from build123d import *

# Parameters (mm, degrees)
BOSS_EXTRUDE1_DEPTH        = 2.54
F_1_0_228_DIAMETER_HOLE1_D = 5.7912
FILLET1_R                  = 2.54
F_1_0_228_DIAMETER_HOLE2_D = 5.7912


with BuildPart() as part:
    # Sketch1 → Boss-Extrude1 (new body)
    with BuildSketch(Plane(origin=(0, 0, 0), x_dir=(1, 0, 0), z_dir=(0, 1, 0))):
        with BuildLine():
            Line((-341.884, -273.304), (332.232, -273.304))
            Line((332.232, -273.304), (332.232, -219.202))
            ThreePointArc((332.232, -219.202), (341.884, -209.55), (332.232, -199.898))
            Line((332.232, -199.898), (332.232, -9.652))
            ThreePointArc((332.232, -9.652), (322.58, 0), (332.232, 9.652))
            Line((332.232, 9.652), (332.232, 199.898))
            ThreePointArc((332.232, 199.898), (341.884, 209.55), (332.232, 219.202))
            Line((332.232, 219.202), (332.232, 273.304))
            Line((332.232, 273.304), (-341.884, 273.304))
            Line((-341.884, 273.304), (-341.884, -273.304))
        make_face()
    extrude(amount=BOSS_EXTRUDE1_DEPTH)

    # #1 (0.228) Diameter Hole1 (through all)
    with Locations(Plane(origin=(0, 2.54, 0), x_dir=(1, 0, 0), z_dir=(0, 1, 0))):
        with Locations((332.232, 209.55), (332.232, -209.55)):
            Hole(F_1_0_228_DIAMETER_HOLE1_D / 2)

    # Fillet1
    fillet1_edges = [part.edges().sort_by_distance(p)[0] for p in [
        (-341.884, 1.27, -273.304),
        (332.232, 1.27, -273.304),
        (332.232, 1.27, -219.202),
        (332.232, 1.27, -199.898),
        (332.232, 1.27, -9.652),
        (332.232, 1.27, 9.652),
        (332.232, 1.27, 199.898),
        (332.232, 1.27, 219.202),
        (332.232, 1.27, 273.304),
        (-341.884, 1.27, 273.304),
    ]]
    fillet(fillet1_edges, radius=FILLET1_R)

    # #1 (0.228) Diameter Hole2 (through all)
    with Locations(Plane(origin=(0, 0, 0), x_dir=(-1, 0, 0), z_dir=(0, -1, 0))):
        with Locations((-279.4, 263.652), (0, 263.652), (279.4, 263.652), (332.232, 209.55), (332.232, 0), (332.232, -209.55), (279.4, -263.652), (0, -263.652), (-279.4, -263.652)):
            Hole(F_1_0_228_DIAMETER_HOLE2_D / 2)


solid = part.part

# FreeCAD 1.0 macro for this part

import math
import FreeCAD as App
import Part
import Sketcher
from FreeCAD import Vector
Q = App.Units.Quantity


def edges_at(feature, points):
    """Names of the edges that pass closest to the given points."""
    edges = feature.Shape.Edges
    near = lambda p: min(range(len(edges)), key=lambda i: edges[i].distToShape(Part.Vertex(*p))[0])
    return sorted({f"Edge{near(p) + 1}" for p in points})

doc = App.newDocument("Part")
body = doc.addObject("PartDesign::Body", "Body")

sketch1 = doc.addObject("Sketcher::SketchObject", "Sketch")
body.addObject(sketch1)
sketch1.AttachmentSupport = (doc.XZ_Plane, [""])
sketch1.MapMode = "FlatFace"
sketch1.addGeometry([
    Part.LineSegment(Vector(-342, 273, 0), Vector(332, 273, 0)),
    Part.LineSegment(Vector(332, 273, 0), Vector(332, 219, 0)),
    Part.ArcOfCircle(Part.Circle(Vector(332, 210, 0), Vector(0, 0, 1), 10), math.radians(-90), math.radians(90)),
    Part.LineSegment(Vector(332, 200, 0), Vector(332, 10, 0)),
    Part.ArcOfCircle(Part.Circle(Vector(332, 0, 0), Vector(0, 0, 1), 10), math.radians(90), math.radians(270)),
    Part.LineSegment(Vector(332, -10, 0), Vector(332, -200, 0)),
    Part.ArcOfCircle(Part.Circle(Vector(332, -210, 0), Vector(0, 0, 1), 10), math.radians(-90), math.radians(90)),
    Part.LineSegment(Vector(332, -219, 0), Vector(332, -273, 0)),
    Part.LineSegment(Vector(332, -273, 0), Vector(-342, -273, 0)),
    Part.LineSegment(Vector(-342, -273, 0), Vector(-342, 273, 0)),
], False)
sketch1.addConstraint([
    Sketcher.Constraint("Coincident", 0, 2, 1, 1),
    Sketcher.Constraint("Coincident", 1, 2, 2, 2),
    Sketcher.Constraint("Coincident", 2, 1, 3, 1),
    Sketcher.Constraint("Coincident", 3, 2, 4, 1),
    Sketcher.Constraint("Coincident", 4, 2, 5, 1),
    Sketcher.Constraint("Coincident", 5, 2, 6, 2),
    Sketcher.Constraint("Coincident", 6, 1, 7, 1),
    Sketcher.Constraint("Coincident", 7, 2, 8, 1),
    Sketcher.Constraint("Coincident", 8, 2, 9, 1),
    Sketcher.Constraint("Coincident", 9, 2, 0, 1),
    Sketcher.Constraint("Horizontal", 0),
    Sketcher.Constraint("Vertical", 1),
    Sketcher.Constraint("Vertical", 3),
    Sketcher.Constraint("Vertical", 5),
    Sketcher.Constraint("Vertical", 7),
    Sketcher.Constraint("Horizontal", 8),
    Sketcher.Constraint("Vertical", 9),
    Sketcher.Constraint("Equal", 2, 4),
    Sketcher.Constraint("Equal", 4, 6),
    Sketcher.Constraint("Symmetric", 2, 3, 6, 3, -1),
    Sketcher.Constraint("Symmetric", 3, 2, 4, 2, -1),
    Sketcher.Constraint("Symmetric", 0, 2, 7, 2, -1),
    Sketcher.Constraint("Vertical", 2, 3, 4, 3),
    Sketcher.Constraint("Vertical", 6, 3, 0, 2),
    Sketcher.Constraint("Vertical", 1, 2, 2, 1),
    Sketcher.Constraint("Radius", 2, Q("0.38 in")),
    Sketcher.Constraint("DistanceX", 0, 1, 0, 2, Q("26.54 in")),
    Sketcher.Constraint("DistanceY", 1, 2, 1, 1, Q("2.13 in")),
    Sketcher.Constraint("DistanceY", 3, 2, 3, 1, Q("7.49 in")),
    Sketcher.Constraint("DistanceX", -1, 1, 2, 3, Q("13.08 in")),
])
pad1 = doc.addObject("PartDesign::Pad", "Pad")
body.addObject(pad1)
pad1.Profile = sketch1
pad1.Length = Q("0.1 in")
pad1.Reversed = True

sketch2 = doc.addObject("Sketcher::SketchObject", "Sketch001")
body.addObject(sketch2)
sketch2.AttachmentSupport = (doc.XZ_Plane, [""])
sketch2.MapMode = "FlatFace"
sketch2.AttachmentOffset = App.Placement(Vector(0, 0, -0.1 * 25.4), App.Rotation())
sketch2.addGeometry([
    Part.Circle(Vector(332.2, -209.6, 0), Vector(0, 0, 1), 2.9),
    Part.Circle(Vector(332.2, 209.6, 0), Vector(0, 0, 1), 2.9),
], False)
sketch2.addConstraint([
    Sketcher.Constraint("Equal", 0, 1),
    Sketcher.Constraint("Symmetric", 0, 3, 1, 3, -1),
    Sketcher.Constraint("Diameter", 0, Q("0.228 in")),
    Sketcher.Constraint("DistanceY", 0, 3, 1, 3, Q("16.5 in")),
    Sketcher.Constraint("DistanceX", -1, 1, 0, 3, Q("13.08 in")),
])
doc.recompute()
hole = doc.addObject("PartDesign::Hole", "Hole")
body.addObject(hole)
hole.Profile = sketch2
hole.ThreadType = "None"
hole.Diameter = Q("0.228 in")
hole.DepthType = "ThroughAll"
hole.Reversed = True
doc.recompute()

fillet = doc.addObject("PartDesign::Fillet", "Fillet")
body.addObject(fillet)
fillet.Base = (hole, edges_at(hole, [
    (-341.884, 1.27, -273.304),
    (332.232, 1.27, -273.304),
    (332.232, 1.27, -219.202),
    (332.232, 1.27, -199.898),
    (332.232, 1.27, -9.652),
    (332.232, 1.27, 9.652),
    (332.232, 1.27, 199.898),
    (332.232, 1.27, 219.202),
    (332.232, 1.27, 273.304),
    (-341.884, 1.27, 273.304),
]))
fillet.Radius = Q("0.1 in")

sketch3 = doc.addObject("Sketcher::SketchObject", "Sketch002")
body.addObject(sketch3)
sketch3.AttachmentSupport = (doc.XZ_Plane, [""])
sketch3.MapMode = "FlatFace"
sketch3.addGeometry([
    Part.Circle(Vector(279.4, -263.7, 0), Vector(0, 0, 1), 2.9),
    Part.Circle(Vector(0, -263.7, 0), Vector(0, 0, 1), 2.9),
    Part.Circle(Vector(-279.4, -263.7, 0), Vector(0, 0, 1), 2.9),
    Part.Circle(Vector(-332.2, -209.6, 0), Vector(0, 0, 1), 2.9),
    Part.Circle(Vector(-332.2, 0, 0), Vector(0, 0, 1), 2.9),
    Part.Circle(Vector(-332.2, 209.6, 0), Vector(0, 0, 1), 2.9),
    Part.Circle(Vector(-279.4, 263.7, 0), Vector(0, 0, 1), 2.9),
    Part.Circle(Vector(0, 263.7, 0), Vector(0, 0, 1), 2.9),
    Part.Circle(Vector(279.4, 263.7, 0), Vector(0, 0, 1), 2.9),
], False)
sketch3.addConstraint([
    Sketcher.Constraint("Equal", 0, 1),
    Sketcher.Constraint("Equal", 1, 2),
    Sketcher.Constraint("Equal", 2, 3),
    Sketcher.Constraint("Equal", 3, 4),
    Sketcher.Constraint("Equal", 4, 5),
    Sketcher.Constraint("Equal", 5, 6),
    Sketcher.Constraint("Equal", 6, 7),
    Sketcher.Constraint("Equal", 7, 8),
    Sketcher.Constraint("Symmetric", 0, 3, 6, 3, -1, 1),
    Sketcher.Constraint("Symmetric", 1, 3, 7, 3, -1, 1),
    Sketcher.Constraint("Symmetric", 2, 3, 8, 3, -1, 1),
    Sketcher.Constraint("Symmetric", 0, 3, 2, 3, -2),
    Sketcher.Constraint("Symmetric", 3, 3, 5, 3, -1),
    Sketcher.Constraint("PointOnObject", 1, 3, -2),
    Sketcher.Constraint("PointOnObject", 4, 3, -1),
    Sketcher.Constraint("Horizontal", 0, 3, 1, 3),
    Sketcher.Constraint("Vertical", 3, 3, 4, 3),
    Sketcher.Constraint("Diameter", 0, Q("0.228 in")),
    Sketcher.Constraint("DistanceX", -1, 1, 0, 3, Q("11 in")),
    Sketcher.Constraint("DistanceY", 3, 3, 5, 3, Q("16.5 in")),
    Sketcher.Constraint("DistanceY", 0, 3, -1, 1, Q("10.38 in")),
    Sketcher.Constraint("DistanceX", 3, 3, -1, 1, Q("13.08 in")),
])
doc.recompute()
hole2 = doc.addObject("PartDesign::Hole", "Hole001")
body.addObject(hole2)
hole2.Profile = sketch3
hole2.ThreadType = "None"
hole2.Diameter = Q("0.228 in")
hole2.DepthType = "ThroughAll"

doc.recompute()
